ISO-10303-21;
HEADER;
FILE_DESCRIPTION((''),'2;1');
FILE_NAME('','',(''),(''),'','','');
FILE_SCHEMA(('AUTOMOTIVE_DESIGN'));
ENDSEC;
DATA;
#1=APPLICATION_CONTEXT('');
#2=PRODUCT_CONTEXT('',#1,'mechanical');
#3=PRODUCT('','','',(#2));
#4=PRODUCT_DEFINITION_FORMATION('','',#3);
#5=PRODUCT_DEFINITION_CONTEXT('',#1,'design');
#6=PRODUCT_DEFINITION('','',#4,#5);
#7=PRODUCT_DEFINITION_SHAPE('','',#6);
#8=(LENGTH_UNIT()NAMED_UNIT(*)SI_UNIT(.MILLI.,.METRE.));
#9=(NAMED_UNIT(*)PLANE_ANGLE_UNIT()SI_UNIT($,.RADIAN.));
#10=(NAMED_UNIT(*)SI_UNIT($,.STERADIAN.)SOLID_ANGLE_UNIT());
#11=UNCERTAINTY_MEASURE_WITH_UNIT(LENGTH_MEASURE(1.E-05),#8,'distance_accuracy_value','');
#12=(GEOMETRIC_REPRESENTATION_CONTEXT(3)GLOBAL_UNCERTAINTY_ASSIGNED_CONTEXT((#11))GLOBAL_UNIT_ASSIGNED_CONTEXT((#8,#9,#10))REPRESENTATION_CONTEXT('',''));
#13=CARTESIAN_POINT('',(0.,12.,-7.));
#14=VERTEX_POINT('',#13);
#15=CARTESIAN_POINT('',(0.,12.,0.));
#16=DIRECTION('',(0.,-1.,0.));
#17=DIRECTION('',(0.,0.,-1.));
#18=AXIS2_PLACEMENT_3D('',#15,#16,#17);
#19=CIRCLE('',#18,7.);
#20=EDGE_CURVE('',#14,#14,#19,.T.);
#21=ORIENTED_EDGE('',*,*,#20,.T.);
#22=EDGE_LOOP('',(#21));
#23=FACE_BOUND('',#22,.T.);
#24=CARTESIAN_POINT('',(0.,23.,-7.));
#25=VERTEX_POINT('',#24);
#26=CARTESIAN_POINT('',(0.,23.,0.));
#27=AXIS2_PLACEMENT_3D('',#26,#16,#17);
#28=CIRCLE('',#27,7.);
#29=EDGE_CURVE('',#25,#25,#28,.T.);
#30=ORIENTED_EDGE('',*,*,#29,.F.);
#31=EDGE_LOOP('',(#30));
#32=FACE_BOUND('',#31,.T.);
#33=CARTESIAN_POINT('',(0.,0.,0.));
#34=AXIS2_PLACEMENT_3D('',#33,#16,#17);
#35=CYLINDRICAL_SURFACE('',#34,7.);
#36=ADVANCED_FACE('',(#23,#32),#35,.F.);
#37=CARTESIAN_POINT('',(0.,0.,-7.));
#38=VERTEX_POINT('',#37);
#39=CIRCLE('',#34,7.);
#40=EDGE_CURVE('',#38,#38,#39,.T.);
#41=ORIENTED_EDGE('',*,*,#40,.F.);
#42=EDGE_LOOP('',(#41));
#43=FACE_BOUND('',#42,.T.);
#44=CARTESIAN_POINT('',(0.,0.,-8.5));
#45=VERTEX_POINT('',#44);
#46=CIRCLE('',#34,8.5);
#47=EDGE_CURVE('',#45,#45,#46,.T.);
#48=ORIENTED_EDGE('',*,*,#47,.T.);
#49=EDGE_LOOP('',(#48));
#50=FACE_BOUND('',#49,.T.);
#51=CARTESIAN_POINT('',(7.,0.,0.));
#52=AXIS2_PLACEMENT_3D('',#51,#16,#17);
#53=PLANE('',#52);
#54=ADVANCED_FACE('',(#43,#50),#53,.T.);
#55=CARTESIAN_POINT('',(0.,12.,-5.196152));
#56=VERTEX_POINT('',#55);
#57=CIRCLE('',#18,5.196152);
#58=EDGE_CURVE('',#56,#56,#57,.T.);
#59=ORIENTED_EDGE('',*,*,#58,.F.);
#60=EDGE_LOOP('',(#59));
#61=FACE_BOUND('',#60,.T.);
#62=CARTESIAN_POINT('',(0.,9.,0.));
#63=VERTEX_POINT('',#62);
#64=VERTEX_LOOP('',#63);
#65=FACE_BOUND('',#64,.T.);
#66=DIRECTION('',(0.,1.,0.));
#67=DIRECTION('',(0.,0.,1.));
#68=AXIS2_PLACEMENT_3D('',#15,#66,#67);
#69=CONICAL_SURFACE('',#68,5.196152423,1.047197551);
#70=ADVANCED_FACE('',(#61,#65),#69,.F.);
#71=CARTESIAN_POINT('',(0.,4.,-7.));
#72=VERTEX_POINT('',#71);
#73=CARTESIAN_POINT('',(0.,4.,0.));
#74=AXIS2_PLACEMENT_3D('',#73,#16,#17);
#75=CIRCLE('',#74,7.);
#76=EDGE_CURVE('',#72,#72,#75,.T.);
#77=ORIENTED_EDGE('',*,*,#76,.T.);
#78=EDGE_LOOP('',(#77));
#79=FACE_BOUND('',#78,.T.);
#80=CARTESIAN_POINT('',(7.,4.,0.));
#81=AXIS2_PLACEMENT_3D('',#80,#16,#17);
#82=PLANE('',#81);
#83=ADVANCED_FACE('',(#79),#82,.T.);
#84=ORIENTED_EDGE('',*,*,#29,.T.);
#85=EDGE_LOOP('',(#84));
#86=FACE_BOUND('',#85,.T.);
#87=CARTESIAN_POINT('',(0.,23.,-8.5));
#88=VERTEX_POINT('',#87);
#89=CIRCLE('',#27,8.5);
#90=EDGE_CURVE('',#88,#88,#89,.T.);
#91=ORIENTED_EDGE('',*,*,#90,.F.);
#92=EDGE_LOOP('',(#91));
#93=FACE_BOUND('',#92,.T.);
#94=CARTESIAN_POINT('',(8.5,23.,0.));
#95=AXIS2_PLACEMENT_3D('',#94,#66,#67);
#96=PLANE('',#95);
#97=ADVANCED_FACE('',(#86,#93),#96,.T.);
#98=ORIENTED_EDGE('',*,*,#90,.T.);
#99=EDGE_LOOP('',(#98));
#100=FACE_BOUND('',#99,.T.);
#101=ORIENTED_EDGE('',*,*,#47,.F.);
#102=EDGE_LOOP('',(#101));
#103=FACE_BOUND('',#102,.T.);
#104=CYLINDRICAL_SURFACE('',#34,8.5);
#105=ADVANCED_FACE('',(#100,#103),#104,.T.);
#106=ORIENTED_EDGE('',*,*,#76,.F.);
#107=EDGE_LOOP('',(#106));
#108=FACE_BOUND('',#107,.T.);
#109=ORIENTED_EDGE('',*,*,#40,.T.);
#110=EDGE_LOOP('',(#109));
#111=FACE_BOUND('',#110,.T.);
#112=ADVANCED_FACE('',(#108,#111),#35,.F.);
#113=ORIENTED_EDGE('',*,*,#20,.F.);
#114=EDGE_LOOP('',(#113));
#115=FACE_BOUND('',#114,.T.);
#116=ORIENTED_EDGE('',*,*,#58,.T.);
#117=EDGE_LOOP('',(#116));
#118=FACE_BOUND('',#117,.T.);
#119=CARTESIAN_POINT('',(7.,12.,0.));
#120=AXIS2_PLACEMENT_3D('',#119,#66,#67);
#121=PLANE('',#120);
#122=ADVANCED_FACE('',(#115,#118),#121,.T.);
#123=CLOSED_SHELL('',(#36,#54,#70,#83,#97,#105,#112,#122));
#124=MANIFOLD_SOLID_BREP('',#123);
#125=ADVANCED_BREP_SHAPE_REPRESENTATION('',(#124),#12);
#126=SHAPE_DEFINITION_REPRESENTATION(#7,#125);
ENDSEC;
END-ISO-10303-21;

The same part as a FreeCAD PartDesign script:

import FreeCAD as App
import Part
import Sketcher
Q = App.Units.Quantity


def add_polygon(sketch, points):
    """Adds a closed chain of lines whose ends are joined by coincident constraints."""
    first, n = sketch.GeometryCount, len(points)
    for a, b in zip(points, points[1:] + points[:1]):
        sketch.addGeometry(Part.LineSegment(App.Vector(*a, 0), App.Vector(*b, 0)), False)
    for i in range(n):
        sketch.addConstraint(Sketcher.Constraint("Coincident", first + i, 2, first + (i + 1) % n, 1))

doc = App.newDocument("Part")
params = doc.addObject("Spreadsheet::Sheet", "Params")
for row, (alias, value) in enumerate([
    ("sketch1_width", "7 mm"),
    ("sketch1_height", "23 mm"),
    ("sketch1_height2", "11 mm"),
    ("sketch1_height3", "5 mm"),
    ("sketch1_height4", "4 mm"),
    ("revolution_angle", "360 deg"),
], start=1):
    params.set(f"A{row}", alias)
    params.set(f"B{row}", "=" + value)
    params.setAlias(f"B{row}", alias)

body = doc.addObject("PartDesign::Body", "Body")

# Sketch on XY plane
sketch1 = body.newObject("Sketcher::SketchObject", "Sketch")
sketch1.AttachmentSupport = (doc.getObject("XY_Plane"), [""])
sketch1.MapMode = "FlatFace"
add_polygon(sketch1, [(8.5, 0), (8.5, 23), (7, 23), (7, 12), (5.2, 12), (0, 9), (0, 4), (7, 4), (7, 0)])  # lines 0-8
sketch1.addConstraint([
    Sketcher.Constraint("Vertical", 0),
    Sketcher.Constraint("Horizontal", 1),
    Sketcher.Constraint("Vertical", 2),
    Sketcher.Constraint("Horizontal", 3),
    Sketcher.Constraint("Vertical", 5),
    Sketcher.Constraint("Horizontal", 6),
    Sketcher.Constraint("Vertical", 7),
    Sketcher.Constraint("Horizontal", 8),
    Sketcher.Constraint("PointOnObject", 4, 2, -2),
    Sketcher.Constraint("PointOnObject", 7, 2, -1),
    Sketcher.Constraint("Vertical", 2, 2, 6, 2),
    Sketcher.Constraint("DistanceX", 6, 1, 6, 2, 7.0),
    Sketcher.Constraint("DistanceY", 0, 1, 0, 2, 23.0),
    Sketcher.Constraint("DistanceY", 2, 2, 2, 1, 11.0),
    Sketcher.Constraint("DistanceY", 5, 2, 5, 1, 5.0),
    Sketcher.Constraint("DistanceY", 7, 2, 7, 1, 4.0),
    Sketcher.Constraint("Angle", 4, Q("-150 deg")),
    Sketcher.Constraint("DistanceX", 1, 2, 1, 1, 1.5),
])
sketch1.setExpression("Constraints[20]", "Params.sketch1_width")
sketch1.setExpression("Constraints[21]", "Params.sketch1_height")
sketch1.setExpression("Constraints[22]", "Params.sketch1_height2")
sketch1.setExpression("Constraints[23]", "Params.sketch1_height3")
sketch1.setExpression("Constraints[24]", "Params.sketch1_height4")
revolution = body.newObject("PartDesign::Revolution", "Revolution")
revolution.Profile = sketch1
revolution.ReferenceAxis = (sketch1, ["V_Axis"])
revolution.setExpression("Angle", "Params.revolution_angle")

doc.recompute()
